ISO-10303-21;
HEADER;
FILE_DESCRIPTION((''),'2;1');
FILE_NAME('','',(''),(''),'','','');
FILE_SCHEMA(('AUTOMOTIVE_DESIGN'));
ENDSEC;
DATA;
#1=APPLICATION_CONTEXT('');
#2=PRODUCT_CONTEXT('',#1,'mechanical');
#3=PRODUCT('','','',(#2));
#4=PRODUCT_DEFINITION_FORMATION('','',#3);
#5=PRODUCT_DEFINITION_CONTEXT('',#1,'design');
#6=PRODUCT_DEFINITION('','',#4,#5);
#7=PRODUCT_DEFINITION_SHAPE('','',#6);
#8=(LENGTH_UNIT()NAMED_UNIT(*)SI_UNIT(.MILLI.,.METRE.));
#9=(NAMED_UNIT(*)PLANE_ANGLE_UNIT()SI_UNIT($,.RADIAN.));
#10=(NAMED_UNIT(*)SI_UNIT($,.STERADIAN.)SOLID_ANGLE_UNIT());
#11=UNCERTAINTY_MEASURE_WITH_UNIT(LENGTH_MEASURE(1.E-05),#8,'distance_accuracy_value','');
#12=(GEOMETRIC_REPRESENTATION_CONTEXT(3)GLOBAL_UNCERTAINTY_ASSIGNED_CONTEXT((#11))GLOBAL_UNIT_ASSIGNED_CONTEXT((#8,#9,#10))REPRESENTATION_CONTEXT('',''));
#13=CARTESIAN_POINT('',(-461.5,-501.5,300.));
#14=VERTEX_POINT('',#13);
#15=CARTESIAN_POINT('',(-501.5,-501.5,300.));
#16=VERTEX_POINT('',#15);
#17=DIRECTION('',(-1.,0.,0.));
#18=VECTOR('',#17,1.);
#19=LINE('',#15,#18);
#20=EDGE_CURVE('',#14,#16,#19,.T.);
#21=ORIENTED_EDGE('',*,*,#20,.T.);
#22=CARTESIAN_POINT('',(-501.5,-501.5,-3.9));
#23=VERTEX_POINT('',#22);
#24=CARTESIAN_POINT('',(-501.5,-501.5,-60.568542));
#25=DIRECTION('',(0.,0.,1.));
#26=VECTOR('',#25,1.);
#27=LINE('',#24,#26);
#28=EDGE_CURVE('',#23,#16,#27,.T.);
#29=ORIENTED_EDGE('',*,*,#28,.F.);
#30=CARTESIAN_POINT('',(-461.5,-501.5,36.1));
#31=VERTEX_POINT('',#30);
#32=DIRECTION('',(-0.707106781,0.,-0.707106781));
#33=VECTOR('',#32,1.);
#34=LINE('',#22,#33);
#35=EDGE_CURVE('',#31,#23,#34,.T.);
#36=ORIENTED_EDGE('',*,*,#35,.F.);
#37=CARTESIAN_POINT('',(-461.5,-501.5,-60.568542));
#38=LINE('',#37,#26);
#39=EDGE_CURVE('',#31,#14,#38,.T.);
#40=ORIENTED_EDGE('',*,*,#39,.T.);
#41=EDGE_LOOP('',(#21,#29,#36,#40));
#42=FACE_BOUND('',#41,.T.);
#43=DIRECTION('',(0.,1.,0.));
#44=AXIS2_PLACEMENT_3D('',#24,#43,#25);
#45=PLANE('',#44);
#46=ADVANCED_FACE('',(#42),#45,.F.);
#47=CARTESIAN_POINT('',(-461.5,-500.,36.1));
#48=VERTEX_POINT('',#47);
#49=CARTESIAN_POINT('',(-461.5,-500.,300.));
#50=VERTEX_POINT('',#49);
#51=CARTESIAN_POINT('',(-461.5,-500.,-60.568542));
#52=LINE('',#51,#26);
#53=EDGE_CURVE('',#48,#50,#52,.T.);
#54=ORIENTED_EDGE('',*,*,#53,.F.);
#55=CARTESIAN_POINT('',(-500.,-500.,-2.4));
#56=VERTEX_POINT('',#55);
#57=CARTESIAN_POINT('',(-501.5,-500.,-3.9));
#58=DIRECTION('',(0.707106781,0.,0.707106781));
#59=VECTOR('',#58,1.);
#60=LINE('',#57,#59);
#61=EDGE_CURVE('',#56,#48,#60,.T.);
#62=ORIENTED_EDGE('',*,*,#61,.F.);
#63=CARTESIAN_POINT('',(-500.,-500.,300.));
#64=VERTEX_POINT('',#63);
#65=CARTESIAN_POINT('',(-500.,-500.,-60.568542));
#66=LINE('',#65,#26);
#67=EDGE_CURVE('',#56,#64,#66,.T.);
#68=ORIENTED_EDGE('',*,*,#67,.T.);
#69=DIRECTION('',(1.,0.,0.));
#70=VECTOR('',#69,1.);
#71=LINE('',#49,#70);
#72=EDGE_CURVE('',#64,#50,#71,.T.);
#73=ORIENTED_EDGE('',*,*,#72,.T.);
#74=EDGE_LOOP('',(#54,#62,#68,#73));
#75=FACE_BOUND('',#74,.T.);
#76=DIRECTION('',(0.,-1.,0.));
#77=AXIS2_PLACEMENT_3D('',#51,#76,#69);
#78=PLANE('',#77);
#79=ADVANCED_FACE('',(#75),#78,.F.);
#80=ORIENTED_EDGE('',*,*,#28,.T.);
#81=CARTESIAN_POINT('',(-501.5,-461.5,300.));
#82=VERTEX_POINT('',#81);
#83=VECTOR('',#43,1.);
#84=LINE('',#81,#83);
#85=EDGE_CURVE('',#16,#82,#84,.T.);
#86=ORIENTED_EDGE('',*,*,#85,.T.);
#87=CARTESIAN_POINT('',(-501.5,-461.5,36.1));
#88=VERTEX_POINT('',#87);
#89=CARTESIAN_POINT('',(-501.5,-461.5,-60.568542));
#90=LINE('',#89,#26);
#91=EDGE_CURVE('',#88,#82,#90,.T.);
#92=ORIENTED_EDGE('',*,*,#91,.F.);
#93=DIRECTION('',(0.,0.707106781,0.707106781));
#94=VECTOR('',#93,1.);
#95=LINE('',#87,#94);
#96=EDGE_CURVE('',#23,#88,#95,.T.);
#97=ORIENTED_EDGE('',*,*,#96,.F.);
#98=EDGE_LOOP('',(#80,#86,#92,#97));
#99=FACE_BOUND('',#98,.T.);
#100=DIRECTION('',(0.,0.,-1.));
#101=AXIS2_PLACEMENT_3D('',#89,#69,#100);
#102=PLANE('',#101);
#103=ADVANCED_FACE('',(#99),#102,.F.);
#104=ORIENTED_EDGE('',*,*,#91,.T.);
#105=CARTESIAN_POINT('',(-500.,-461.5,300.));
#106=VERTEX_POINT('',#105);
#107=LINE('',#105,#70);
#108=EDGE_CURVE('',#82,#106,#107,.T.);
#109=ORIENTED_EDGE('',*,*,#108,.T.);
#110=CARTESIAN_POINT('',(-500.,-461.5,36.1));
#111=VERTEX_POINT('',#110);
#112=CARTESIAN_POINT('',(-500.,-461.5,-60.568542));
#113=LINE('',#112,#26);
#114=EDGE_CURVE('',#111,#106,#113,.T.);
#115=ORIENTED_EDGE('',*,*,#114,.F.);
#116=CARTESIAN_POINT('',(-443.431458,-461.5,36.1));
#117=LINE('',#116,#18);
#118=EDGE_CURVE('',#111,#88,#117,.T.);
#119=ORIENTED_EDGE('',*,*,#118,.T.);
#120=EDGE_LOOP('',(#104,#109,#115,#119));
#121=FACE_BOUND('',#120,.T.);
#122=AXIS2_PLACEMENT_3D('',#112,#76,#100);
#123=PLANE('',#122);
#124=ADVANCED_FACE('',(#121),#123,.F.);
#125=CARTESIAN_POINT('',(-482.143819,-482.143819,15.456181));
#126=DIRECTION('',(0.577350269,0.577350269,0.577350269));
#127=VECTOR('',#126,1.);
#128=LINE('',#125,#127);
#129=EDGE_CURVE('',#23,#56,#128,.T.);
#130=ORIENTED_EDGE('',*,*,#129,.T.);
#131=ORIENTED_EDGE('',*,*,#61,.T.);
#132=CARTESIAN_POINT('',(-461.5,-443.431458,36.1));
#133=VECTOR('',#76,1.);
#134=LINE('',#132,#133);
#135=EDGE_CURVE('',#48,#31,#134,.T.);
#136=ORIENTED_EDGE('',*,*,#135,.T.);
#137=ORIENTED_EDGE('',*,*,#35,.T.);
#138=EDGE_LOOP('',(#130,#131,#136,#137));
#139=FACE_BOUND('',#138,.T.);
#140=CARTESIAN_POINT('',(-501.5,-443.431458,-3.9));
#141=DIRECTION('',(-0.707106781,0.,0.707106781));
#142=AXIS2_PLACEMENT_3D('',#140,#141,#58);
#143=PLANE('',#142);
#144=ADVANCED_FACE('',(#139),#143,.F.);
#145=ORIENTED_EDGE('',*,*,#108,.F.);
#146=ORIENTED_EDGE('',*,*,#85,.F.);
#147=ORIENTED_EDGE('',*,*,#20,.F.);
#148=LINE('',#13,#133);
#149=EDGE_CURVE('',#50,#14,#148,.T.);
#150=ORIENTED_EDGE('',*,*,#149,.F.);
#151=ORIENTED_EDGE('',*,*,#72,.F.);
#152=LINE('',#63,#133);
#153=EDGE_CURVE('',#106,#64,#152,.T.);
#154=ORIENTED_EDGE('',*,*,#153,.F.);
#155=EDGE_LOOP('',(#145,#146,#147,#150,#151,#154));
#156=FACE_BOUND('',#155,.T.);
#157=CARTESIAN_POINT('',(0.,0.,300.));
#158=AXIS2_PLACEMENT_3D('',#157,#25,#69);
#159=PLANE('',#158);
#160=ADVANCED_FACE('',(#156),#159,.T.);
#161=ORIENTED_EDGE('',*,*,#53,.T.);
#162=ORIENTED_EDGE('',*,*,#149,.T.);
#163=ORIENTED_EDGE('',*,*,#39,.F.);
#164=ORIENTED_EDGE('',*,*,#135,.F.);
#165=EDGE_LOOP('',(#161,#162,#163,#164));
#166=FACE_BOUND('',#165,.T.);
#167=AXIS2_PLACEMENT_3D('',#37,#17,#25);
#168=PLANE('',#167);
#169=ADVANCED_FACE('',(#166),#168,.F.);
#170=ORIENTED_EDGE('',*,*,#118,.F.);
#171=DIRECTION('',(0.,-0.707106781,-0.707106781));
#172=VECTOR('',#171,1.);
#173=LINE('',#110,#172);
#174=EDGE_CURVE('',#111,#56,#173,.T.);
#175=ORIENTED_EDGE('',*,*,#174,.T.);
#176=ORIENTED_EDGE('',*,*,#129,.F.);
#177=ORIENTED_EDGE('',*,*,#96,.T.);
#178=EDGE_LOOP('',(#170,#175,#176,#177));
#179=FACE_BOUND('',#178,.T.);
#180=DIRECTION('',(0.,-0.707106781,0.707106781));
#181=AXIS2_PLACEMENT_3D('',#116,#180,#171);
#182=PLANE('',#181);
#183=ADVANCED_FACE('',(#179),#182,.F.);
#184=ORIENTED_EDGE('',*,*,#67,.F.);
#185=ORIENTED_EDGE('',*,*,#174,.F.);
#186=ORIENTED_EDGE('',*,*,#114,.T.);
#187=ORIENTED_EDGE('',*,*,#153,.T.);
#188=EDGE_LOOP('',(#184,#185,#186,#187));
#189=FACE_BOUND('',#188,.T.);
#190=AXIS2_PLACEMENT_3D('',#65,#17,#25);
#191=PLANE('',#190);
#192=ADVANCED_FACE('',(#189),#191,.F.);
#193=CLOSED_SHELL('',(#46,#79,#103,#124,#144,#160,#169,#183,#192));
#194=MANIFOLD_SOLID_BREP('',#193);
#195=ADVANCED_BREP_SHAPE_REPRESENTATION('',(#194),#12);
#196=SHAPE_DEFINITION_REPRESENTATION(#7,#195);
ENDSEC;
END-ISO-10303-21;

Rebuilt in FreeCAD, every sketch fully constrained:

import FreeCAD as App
import Part
import Sketcher

V = App.Vector
Q = App.Units.Quantity


def add_polygon(sketch, points):
    """Adds a closed chain of lines whose ends are joined by coincident constraints."""
    first, n = sketch.GeometryCount, len(points)
    for a, b in zip(points, points[1:] + points[:1]):
        sketch.addGeometry(Part.LineSegment(App.Vector(*a, 0), App.Vector(*b, 0)), False)
    for i in range(n):
        sketch.addConstraint(Sketcher.Constraint("Coincident", first + i, 2, first + (i + 1) % n, 1))

doc = App.newDocument("Part")
body = doc.addObject("PartDesign::Body", "Body")

# Sketch on XY plane
sketch1 = body.newObject("Sketcher::SketchObject", "Sketch")
sketch1.AttachmentSupport = (doc.getObject("XY_Plane"), [""])
sketch1.MapMode = "FlatFace"
sketch1.AttachmentOffset = App.Placement(V(0, 0, 300), App.Rotation())
add_polygon(sketch1, [(-500, -500), (-461.5, -500), (-461.5, -501.5), (-501.5, -501.5), (-501.5, -461.5), (-500, -461.5)])  # lines 0-5
sketch1.addConstraint(Sketcher.Constraint("Horizontal", 0))
sketch1.addConstraint(Sketcher.Constraint("Vertical", 1))
sketch1.addConstraint(Sketcher.Constraint("Horizontal", 2))
sketch1.addConstraint(Sketcher.Constraint("Vertical", 3))
sketch1.addConstraint(Sketcher.Constraint("Horizontal", 4))
sketch1.addConstraint(Sketcher.Constraint("Vertical", 5))
sketch1.addConstraint(Sketcher.Constraint("Equal", 4, 1))
sketch1.addConstraint(Sketcher.Constraint("Equal", 2, 3))
sketch1.addConstraint(Sketcher.Constraint("DistanceX", 2, 2, 2, 1, Q("40 mm")))
sketch1.addConstraint(Sketcher.Constraint("DistanceX", 0, 1, 0, 2, Q("38.5 mm")))
sketch1.addConstraint(Sketcher.Constraint("DistanceY", 0, 2, -1, 1, Q("500 mm")))
sketch1.addConstraint(Sketcher.Constraint("DistanceX", 4, 2, -1, 1, Q("500 mm")))
pad1 = body.newObject("PartDesign::Pad", "Pad")
pad1.Profile = sketch1
pad1.Length = 303.9
pad1.Reversed = True

# Sketch on XZ plane
sketch2 = body.newObject("Sketcher::SketchObject", "Sketch001")
sketch2.AttachmentSupport = (doc.getObject("XZ_Plane"), [""])
sketch2.MapMode = "FlatFace"
sketch2.AttachmentOffset = App.Placement(V(0, 0, 501.5), App.Rotation())
add_polygon(sketch2, [(-502, -4), (-462, -4), (-462, 36)])  # lines 0-2
sketch2.addConstraint(Sketcher.Constraint("Horizontal", 0))
sketch2.addConstraint(Sketcher.Constraint("Vertical", 1))
sketch2.addConstraint(Sketcher.Constraint("Equal", 0, 1))
sketch2.addConstraint(Sketcher.Constraint("DistanceX", 0, 1, 0, 2, Q("40 mm")))
sketch2.addConstraint(Sketcher.Constraint("DistanceX", 0, 2, -1, 1, Q("461.5 mm")))
sketch2.addConstraint(Sketcher.Constraint("DistanceY", 0, 2, -1, 1, Q("3.9 mm")))
pocket1 = body.newObject("PartDesign::Pocket", "Pocket")
pocket1.Profile = sketch2
pocket1.Length = 1.5

# Sketch on YZ plane
sketch3 = body.newObject("Sketcher::SketchObject", "Sketch002")
sketch3.AttachmentSupport = (doc.getObject("YZ_Plane"), [""])
sketch3.MapMode = "FlatFace"
sketch3.AttachmentOffset = App.Placement(V(0, 0, -501.5), App.Rotation())
add_polygon(sketch3, [(-462, -4), (-502, -4), (-462, 36)])  # lines 0-2
sketch3.addConstraint(Sketcher.Constraint("Horizontal", 0))
sketch3.addConstraint(Sketcher.Constraint("Vertical", 2))
sketch3.addConstraint(Sketcher.Constraint("Equal", 0, 2))
sketch3.addConstraint(Sketcher.Constraint("DistanceX", 0, 2, 0, 1, Q("40 mm")))
sketch3.addConstraint(Sketcher.Constraint("DistanceX", 0, 2, -1, 1, Q("501.5 mm")))
sketch3.addConstraint(Sketcher.Constraint("DistanceY", 0, 2, -1, 1, Q("3.9 mm")))
pocket2 = body.newObject("PartDesign::Pocket", "Pocket001")
pocket2.Profile = sketch3
pocket2.Length = 1.5
pocket2.Reversed = True

doc.recompute()
